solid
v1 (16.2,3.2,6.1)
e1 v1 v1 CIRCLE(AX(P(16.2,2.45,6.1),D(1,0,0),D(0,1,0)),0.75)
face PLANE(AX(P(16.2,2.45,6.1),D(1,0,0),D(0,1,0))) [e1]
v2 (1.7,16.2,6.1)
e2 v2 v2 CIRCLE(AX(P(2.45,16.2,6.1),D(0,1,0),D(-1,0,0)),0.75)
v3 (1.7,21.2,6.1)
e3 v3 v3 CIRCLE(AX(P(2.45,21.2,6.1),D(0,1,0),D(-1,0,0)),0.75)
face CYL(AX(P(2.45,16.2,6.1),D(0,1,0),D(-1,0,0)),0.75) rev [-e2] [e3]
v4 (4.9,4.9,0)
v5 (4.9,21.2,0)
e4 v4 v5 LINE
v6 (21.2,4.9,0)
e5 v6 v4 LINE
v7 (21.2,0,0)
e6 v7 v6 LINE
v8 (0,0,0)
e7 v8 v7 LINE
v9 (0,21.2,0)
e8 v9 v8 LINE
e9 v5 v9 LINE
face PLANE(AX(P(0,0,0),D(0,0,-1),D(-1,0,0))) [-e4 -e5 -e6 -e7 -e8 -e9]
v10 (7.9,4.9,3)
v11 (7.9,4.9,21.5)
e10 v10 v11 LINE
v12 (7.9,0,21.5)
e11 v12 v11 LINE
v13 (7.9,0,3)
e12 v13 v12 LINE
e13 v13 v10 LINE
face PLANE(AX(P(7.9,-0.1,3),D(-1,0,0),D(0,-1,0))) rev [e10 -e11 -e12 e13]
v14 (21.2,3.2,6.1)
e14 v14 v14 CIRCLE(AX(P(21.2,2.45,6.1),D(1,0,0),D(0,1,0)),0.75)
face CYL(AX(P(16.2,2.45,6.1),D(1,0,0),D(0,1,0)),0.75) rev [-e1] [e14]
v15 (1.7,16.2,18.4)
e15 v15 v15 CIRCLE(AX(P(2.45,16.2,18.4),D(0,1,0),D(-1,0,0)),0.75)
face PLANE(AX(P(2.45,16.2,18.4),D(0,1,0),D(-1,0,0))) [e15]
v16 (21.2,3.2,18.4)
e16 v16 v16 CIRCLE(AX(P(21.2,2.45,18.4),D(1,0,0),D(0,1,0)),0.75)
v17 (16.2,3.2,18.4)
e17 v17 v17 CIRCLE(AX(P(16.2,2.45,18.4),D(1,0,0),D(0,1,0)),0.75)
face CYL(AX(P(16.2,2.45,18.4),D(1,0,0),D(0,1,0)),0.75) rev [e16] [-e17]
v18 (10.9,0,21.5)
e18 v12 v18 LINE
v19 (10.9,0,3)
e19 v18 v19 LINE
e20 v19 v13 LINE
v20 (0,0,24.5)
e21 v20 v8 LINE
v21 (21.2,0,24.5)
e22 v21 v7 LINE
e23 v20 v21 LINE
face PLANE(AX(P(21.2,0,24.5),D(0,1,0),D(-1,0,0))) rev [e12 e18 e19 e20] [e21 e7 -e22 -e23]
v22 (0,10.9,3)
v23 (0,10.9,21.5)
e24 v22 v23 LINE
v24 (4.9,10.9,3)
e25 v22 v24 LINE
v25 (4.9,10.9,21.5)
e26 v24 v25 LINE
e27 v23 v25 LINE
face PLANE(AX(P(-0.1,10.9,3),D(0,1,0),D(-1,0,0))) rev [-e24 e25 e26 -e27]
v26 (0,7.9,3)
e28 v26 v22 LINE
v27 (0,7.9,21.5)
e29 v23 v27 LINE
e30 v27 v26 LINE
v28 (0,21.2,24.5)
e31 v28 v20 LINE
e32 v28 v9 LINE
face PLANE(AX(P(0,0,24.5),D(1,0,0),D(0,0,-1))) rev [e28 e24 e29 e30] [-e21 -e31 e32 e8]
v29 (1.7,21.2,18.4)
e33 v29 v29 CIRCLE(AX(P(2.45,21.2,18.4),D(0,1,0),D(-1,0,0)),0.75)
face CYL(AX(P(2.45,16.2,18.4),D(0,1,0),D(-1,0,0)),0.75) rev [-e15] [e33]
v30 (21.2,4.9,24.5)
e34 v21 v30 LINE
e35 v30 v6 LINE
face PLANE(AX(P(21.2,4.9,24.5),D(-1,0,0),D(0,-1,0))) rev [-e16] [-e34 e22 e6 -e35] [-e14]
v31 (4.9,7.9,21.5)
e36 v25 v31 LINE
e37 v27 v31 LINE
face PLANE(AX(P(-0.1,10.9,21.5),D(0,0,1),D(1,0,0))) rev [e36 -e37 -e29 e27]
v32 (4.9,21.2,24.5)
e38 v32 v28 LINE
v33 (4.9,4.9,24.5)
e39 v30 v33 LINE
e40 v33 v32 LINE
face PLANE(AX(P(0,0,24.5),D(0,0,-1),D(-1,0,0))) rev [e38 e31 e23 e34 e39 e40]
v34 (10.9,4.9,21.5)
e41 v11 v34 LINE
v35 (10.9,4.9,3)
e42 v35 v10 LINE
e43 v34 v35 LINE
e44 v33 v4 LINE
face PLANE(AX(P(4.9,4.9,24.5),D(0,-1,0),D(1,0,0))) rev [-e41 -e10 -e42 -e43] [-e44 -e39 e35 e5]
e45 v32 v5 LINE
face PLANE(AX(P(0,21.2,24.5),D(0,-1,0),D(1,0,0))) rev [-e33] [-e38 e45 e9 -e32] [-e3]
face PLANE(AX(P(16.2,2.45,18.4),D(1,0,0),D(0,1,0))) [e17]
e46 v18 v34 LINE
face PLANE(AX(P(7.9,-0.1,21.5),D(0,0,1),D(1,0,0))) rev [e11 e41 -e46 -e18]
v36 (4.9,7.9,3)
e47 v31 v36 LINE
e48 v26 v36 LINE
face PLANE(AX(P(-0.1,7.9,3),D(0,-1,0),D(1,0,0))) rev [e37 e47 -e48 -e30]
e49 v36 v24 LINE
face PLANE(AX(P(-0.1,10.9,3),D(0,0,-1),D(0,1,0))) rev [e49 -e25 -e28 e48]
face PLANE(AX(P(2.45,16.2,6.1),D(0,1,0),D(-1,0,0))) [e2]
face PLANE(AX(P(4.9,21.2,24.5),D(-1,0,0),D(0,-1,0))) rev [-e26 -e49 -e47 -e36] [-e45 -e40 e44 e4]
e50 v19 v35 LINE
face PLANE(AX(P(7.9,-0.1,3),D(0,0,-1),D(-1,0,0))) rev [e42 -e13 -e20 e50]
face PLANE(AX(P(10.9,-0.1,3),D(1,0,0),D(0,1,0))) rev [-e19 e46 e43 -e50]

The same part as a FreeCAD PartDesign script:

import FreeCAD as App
import Part
import Sketcher

doc = App.newDocument("Part")
body = doc.addObject("PartDesign::Body", "Body")

sketch1 = body.newObject("Sketcher::SketchObject", "Sketch")
sketch1.AttachmentSupport = (doc.getObject("XY_Plane"), [""])
sketch1.MapMode = "FlatFace"
sketch1.addGeometry([
    Part.LineSegment(App.Vector(0, 21.2, 0), App.Vector(0, 0, 0)),
    Part.LineSegment(App.Vector(0, 0, 0), App.Vector(21.2, 0, 0)),
    Part.LineSegment(App.Vector(21.2, 0, 0), App.Vector(21.2, 4.9, 0)),
    Part.LineSegment(App.Vector(21.2, 4.9, 0), App.Vector(4.9, 4.9, 0)),
    Part.LineSegment(App.Vector(4.9, 4.9, 0), App.Vector(4.9, 21.2, 0)),
    Part.LineSegment(App.Vector(4.9, 21.2, 0), App.Vector(0, 21.2, 0)),
], False)
sketch1.addConstraint([
    Sketcher.Constraint("Coincident", 0, 2, 1, 1),
    Sketcher.Constraint("Coincident", 1, 2, 2, 1),
    Sketcher.Constraint("Coincident", 2, 2, 3, 1),
    Sketcher.Constraint("Coincident", 3, 2, 4, 1),
    Sketcher.Constraint("Coincident", 4, 2, 5, 1),
    Sketcher.Constraint("Coincident", 5, 2, 0, 1),
    Sketcher.Constraint("Vertical", 0),
    Sketcher.Constraint("Horizontal", 1),
    Sketcher.Constraint("Vertical", 2),
    Sketcher.Constraint("Horizontal", 3),
    Sketcher.Constraint("Vertical", 4),
    Sketcher.Constraint("Horizontal", 5),
    Sketcher.Constraint("Coincident", 0, 2, -1, 1),
    Sketcher.Constraint("Equal", 1, 0),
    Sketcher.Constraint("Equal", 5, 2),
    Sketcher.Constraint("DistanceX", 1, 1, 1, 2, 21.2),
    Sketcher.Constraint("DistanceX", 3, 2, 3, 1, 16.3),
])
pad1 = body.newObject("PartDesign::Pad", "Pad")
pad1.Profile = sketch1
pad1.Length = 24.5

sketch2 = body.newObject("Sketcher::SketchObject", "Sketch001")
sketch2.AttachmentSupport = (doc.getObject("YZ_Plane"), [""])
sketch2.MapMode = "FlatFace"
sketch2.AttachmentOffset = App.Placement(App.Vector(0, 0, 21.2), App.Rotation())
sketch2.addGeometry([
    Part.Circle(App.Vector(2.5, 6.1, 0), App.Vector(0, 0, 1), 0.8),
    Part.Circle(App.Vector(2.5, 18.4, 0), App.Vector(0, 0, 1), 0.8),
], False)
sketch2.addConstraint([
    Sketcher.Constraint("Equal", 0, 1),
    Sketcher.Constraint("Vertical", 0, 3, 1, 3),
    Sketcher.Constraint("Diameter", 0, 1.5),
    Sketcher.Constraint("DistanceY", -1, 1, 0, 3, 6.1),
    Sketcher.Constraint("DistanceY", -1, 1, 1, 3, 18.4),
    Sketcher.Constraint("DistanceX", -1, 1, 0, 3, 2.45),
])
pocket1 = body.newObject("PartDesign::Pocket", "Pocket")
pocket1.Profile = sketch2
pocket1.Length = 5

sketch3 = body.newObject("Sketcher::SketchObject", "Sketch002")
sketch3.AttachmentSupport = (doc.getObject("XZ_Plane"), [""])
sketch3.MapMode = "FlatFace"
sketch3.AttachmentOffset = App.Placement(App.Vector(0, 0, -21.2), App.Rotation())
sketch3.addGeometry([
    Part.Circle(App.Vector(2.5, 6.1, 0), App.Vector(0, 0, 1), 0.8),
    Part.Circle(App.Vector(2.5, 18.4, 0), App.Vector(0, 0, 1), 0.8),
], False)
sketch3.addConstraint([
    Sketcher.Constraint("Equal", 0, 1),
    Sketcher.Constraint("Vertical", 0, 3, 1, 3),
    Sketcher.Constraint("Diameter", 0, 1.5),
    Sketcher.Constraint("DistanceY", -1, 1, 0, 3, 6.1),
    Sketcher.Constraint("DistanceY", -1, 1, 1, 3, 18.4),
    Sketcher.Constraint("DistanceX", -1, 1, 0, 3, 2.45),
])
pocket2 = body.newObject("PartDesign::Pocket", "Pocket001")
pocket2.Profile = sketch3
pocket2.Length = 5
pocket2.Reversed = True

sketch4 = body.newObject("Sketcher::SketchObject", "Sketch003")
sketch4.AttachmentSupport = (doc.getObject("XZ_Plane"), [""])
sketch4.MapMode = "FlatFace"
sketch4.AttachmentOffset = App.Placement(App.Vector(0, 0, -4.9), App.Rotation())
sketch4.addGeometry([
    Part.LineSegment(App.Vector(10.9, 21.5, 0), App.Vector(10.9, 3, 0)),
    Part.LineSegment(App.Vector(10.9, 3, 0), App.Vector(7.9, 3, 0)),
    Part.LineSegment(App.Vector(7.9, 3, 0), App.Vector(7.9, 21.5, 0)),
    Part.LineSegment(App.Vector(7.9, 21.5, 0), App.Vector(10.9, 21.5, 0)),
], False)
sketch4.addConstraint([
    Sketcher.Constraint("Coincident", 0, 2, 1, 1),
    Sketcher.Constraint("Coincident", 1, 2, 2, 1),
    Sketcher.Constraint("Coincident", 2, 2, 3, 1),
    Sketcher.Constraint("Coincident", 3, 2, 0, 1),
    Sketcher.Constraint("Vertical", 0),
    Sketcher.Constraint("Horizontal", 1),
    Sketcher.Constraint("Vertical", 2),
    Sketcher.Constraint("Horizontal", 3),
    Sketcher.Constraint("DistanceX", 1, 2, 1, 1, 3.0),
    Sketcher.Constraint("DistanceY", 0, 2, 0, 1, 18.5),
    Sketcher.Constraint("DistanceY", -1, 1, 0, 2, 3.0),
    Sketcher.Constraint("DistanceX", -1, 1, 0, 2, 10.9),
])
pocket3 = body.newObject("PartDesign::Pocket", "Pocket002")
pocket3.Profile = sketch4
pocket3.Length = 5
pocket3.Reversed = True

sketch5 = body.newObject("Sketcher::SketchObject", "Sketch004")
sketch5.AttachmentSupport = (doc.getObject("YZ_Plane"), [""])
sketch5.MapMode = "FlatFace"
sketch5.AttachmentOffset = App.Placement(App.Vector(0, 0, 4.9), App.Rotation())
sketch5.addGeometry([
    Part.LineSegment(App.Vector(10.9, 21.5, 0), App.Vector(7.9, 21.5, 0)),
    Part.LineSegment(App.Vector(7.9, 21.5, 0), App.Vector(7.9, 3, 0)),
    Part.LineSegment(App.Vector(7.9, 3, 0), App.Vector(10.9, 3, 0)),
    Part.LineSegment(App.Vector(10.9, 3, 0), App.Vector(10.9, 21.5, 0)),
], False)
sketch5.addConstraint([
    Sketcher.Constraint("Coincident", 0, 2, 1, 1),
    Sketcher.Constraint("Coincident", 1, 2, 2, 1),
    Sketcher.Constraint("Coincident", 2, 2, 3, 1),
    Sketcher.Constraint("Coincident", 3, 2, 0, 1),
    Sketcher.Constraint("Horizontal", 0),
    Sketcher.Constraint("Vertical", 1),
    Sketcher.Constraint("Horizontal", 2),
    Sketcher.Constraint("Vertical", 3),
    Sketcher.Constraint("DistanceX", 0, 2, 0, 1, 3.0),
    Sketcher.Constraint("DistanceY", 1, 2, 1, 1, 18.5),
    Sketcher.Constraint("DistanceY", -1, 1, 1, 2, 3.0),
    Sketcher.Constraint("DistanceX", -1, 1, 0, 2, 7.9),
])
pocket4 = body.newObject("PartDesign::Pocket", "Pocket003")
pocket4.Profile = sketch5
pocket4.Length = 5

doc.recompute()
